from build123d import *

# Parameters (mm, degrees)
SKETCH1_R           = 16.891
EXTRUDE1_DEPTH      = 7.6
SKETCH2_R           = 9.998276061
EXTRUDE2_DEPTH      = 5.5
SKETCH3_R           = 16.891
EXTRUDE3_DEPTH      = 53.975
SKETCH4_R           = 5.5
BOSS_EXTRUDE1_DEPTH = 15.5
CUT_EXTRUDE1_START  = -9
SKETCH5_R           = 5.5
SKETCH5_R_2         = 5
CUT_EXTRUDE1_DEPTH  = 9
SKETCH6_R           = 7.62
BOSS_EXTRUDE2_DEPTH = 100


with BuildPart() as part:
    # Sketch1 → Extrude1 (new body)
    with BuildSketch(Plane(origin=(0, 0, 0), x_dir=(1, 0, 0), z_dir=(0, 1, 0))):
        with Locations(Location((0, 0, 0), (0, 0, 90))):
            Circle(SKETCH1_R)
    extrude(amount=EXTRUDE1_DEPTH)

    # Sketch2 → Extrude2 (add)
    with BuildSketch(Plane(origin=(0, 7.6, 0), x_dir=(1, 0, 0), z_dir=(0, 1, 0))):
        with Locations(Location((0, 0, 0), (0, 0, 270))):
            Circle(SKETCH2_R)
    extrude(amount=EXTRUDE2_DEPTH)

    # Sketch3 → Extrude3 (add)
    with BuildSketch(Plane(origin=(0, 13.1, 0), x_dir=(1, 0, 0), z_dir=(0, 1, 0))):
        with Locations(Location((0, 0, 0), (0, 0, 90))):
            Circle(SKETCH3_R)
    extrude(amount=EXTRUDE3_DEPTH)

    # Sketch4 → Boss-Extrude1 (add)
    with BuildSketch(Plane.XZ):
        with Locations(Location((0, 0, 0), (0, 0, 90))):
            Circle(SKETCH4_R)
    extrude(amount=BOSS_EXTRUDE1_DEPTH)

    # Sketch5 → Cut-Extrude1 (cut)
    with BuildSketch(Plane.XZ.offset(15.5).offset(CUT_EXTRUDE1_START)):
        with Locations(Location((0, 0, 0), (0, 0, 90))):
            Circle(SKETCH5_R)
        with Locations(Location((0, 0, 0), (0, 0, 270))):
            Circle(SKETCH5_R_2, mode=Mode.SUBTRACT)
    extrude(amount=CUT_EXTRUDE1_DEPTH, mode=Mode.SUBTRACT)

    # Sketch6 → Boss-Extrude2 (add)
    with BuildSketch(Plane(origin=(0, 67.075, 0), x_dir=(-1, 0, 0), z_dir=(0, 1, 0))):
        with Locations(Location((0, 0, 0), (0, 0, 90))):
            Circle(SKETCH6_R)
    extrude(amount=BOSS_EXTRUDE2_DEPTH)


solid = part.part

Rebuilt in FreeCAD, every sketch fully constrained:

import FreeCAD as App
import Part
import Sketcher

V = App.Vector

doc = App.newDocument("Part")
body = doc.addObject("PartDesign::Body", "Body")

# Sketch on XZ plane
sketch1 = body.newObject("Sketcher::SketchObject", "Sketch")
sketch1.AttachmentSupport = (doc.getObject("XZ_Plane"), [""])
sketch1.MapMode = "FlatFace"
sketch1.addGeometry(Part.Circle(V(0, 0, 0), V(0, 0, 1), 17), False)
sketch1.addConstraint(Sketcher.Constraint("Coincident", 0, 3, -1, 1))
sketch1.addConstraint(Sketcher.Constraint("Diameter", 0, 33.782))
pad1 = body.newObject("PartDesign::Pad", "Pad")
pad1.Profile = sketch1
pad1.Length = 7.6
pad1.Reversed = True

# Sketch on XZ plane
sketch2 = body.newObject("Sketcher::SketchObject", "Sketch001")
sketch2.AttachmentSupport = (doc.getObject("XZ_Plane"), [""])
sketch2.MapMode = "FlatFace"
sketch2.AttachmentOffset = App.Placement(V(0, 0, -7.6), App.Rotation())
sketch2.addGeometry(Part.Circle(V(0, 0, 0), V(0, 0, 1), 10), False)
sketch2.addConstraint(Sketcher.Constraint("Coincident", 0, 3, -1, 1))
sketch2.addConstraint(Sketcher.Constraint("Diameter", 0, 19.996552))
pad2 = body.newObject("PartDesign::Pad", "Pad001")
pad2.Profile = sketch2
pad2.Length = 5.5
pad2.Reversed = True

# Sketch on XZ plane
sketch3 = body.newObject("Sketcher::SketchObject", "Sketch002")
sketch3.AttachmentSupport = (doc.getObject("XZ_Plane"), [""])
sketch3.MapMode = "FlatFace"
sketch3.AttachmentOffset = App.Placement(V(0, 0, -13.1), App.Rotation())
sketch3.addGeometry(Part.Circle(V(0, 0, 0), V(0, 0, 1), 17), False)
sketch3.addConstraint(Sketcher.Constraint("Coincident", 0, 3, -1, 1))
sketch3.addConstraint(Sketcher.Constraint("Diameter", 0, 33.782))
pad3 = body.newObject("PartDesign::Pad", "Pad002")
pad3.Profile = sketch3
pad3.Length = 53.975
pad3.Reversed = True

# Sketch on XZ plane
sketch4 = body.newObject("Sketcher::SketchObject", "Sketch003")
sketch4.AttachmentSupport = (doc.getObject("XZ_Plane"), [""])
sketch4.MapMode = "FlatFace"
sketch4.addGeometry(Part.Circle(V(0, 0, 0), V(0, 0, 1), 6), False)
sketch4.addConstraint(Sketcher.Constraint("Coincident", 0, 3, -1, 1))
sketch4.addConstraint(Sketcher.Constraint("Diameter", 0, 11.0))
pad4 = body.newObject("PartDesign::Pad", "Pad003")
pad4.Profile = sketch4
pad4.Length = 15.5

# Sketch on XZ plane
sketch5 = body.newObject("Sketcher::SketchObject", "Sketch004")
sketch5.AttachmentSupport = (doc.getObject("XZ_Plane"), [""])
sketch5.MapMode = "FlatFace"
sketch5.AttachmentOffset = App.Placement(V(0, 0, 6.5), App.Rotation())
sketch5.addGeometry(Part.Circle(V(0, 0, 0), V(0, 0, 1), 6), False)
sketch5.addGeometry(Part.Circle(V(0, 0, 0), V(0, 0, 1), 5), False)
sketch5.addConstraint(Sketcher.Constraint("Coincident", 0, 3, -1, 1))
sketch5.addConstraint(Sketcher.Constraint("Coincident", 1, 3, -1, 1))
sketch5.addConstraint(Sketcher.Constraint("Diameter", 0, 11.0))
sketch5.addConstraint(Sketcher.Constraint("Diameter", 1, 10.0))
pocket1 = body.newObject("PartDesign::Pocket", "Pocket")
pocket1.Profile = sketch5
pocket1.Length = 9
pocket1.Reversed = True

# Sketch on XZ plane
sketch6 = body.newObject("Sketcher::SketchObject", "Sketch005")
sketch6.AttachmentSupport = (doc.getObject("XZ_Plane"), [""])
sketch6.MapMode = "FlatFace"
sketch6.AttachmentOffset = App.Placement(V(0, 0, -67.075), App.Rotation())
sketch6.addGeometry(Part.Circle(V(0, 0, 0), V(0, 0, 1), 8), False)
sketch6.addConstraint(Sketcher.Constraint("Coincident", 0, 3, -1, 1))
sketch6.addConstraint(Sketcher.Constraint("Diameter", 0, 15.24))
pad5 = body.newObject("PartDesign::Pad", "Pad004")
pad5.Profile = sketch6
pad5.Length = 100
pad5.Reversed = True

doc.recompute()
